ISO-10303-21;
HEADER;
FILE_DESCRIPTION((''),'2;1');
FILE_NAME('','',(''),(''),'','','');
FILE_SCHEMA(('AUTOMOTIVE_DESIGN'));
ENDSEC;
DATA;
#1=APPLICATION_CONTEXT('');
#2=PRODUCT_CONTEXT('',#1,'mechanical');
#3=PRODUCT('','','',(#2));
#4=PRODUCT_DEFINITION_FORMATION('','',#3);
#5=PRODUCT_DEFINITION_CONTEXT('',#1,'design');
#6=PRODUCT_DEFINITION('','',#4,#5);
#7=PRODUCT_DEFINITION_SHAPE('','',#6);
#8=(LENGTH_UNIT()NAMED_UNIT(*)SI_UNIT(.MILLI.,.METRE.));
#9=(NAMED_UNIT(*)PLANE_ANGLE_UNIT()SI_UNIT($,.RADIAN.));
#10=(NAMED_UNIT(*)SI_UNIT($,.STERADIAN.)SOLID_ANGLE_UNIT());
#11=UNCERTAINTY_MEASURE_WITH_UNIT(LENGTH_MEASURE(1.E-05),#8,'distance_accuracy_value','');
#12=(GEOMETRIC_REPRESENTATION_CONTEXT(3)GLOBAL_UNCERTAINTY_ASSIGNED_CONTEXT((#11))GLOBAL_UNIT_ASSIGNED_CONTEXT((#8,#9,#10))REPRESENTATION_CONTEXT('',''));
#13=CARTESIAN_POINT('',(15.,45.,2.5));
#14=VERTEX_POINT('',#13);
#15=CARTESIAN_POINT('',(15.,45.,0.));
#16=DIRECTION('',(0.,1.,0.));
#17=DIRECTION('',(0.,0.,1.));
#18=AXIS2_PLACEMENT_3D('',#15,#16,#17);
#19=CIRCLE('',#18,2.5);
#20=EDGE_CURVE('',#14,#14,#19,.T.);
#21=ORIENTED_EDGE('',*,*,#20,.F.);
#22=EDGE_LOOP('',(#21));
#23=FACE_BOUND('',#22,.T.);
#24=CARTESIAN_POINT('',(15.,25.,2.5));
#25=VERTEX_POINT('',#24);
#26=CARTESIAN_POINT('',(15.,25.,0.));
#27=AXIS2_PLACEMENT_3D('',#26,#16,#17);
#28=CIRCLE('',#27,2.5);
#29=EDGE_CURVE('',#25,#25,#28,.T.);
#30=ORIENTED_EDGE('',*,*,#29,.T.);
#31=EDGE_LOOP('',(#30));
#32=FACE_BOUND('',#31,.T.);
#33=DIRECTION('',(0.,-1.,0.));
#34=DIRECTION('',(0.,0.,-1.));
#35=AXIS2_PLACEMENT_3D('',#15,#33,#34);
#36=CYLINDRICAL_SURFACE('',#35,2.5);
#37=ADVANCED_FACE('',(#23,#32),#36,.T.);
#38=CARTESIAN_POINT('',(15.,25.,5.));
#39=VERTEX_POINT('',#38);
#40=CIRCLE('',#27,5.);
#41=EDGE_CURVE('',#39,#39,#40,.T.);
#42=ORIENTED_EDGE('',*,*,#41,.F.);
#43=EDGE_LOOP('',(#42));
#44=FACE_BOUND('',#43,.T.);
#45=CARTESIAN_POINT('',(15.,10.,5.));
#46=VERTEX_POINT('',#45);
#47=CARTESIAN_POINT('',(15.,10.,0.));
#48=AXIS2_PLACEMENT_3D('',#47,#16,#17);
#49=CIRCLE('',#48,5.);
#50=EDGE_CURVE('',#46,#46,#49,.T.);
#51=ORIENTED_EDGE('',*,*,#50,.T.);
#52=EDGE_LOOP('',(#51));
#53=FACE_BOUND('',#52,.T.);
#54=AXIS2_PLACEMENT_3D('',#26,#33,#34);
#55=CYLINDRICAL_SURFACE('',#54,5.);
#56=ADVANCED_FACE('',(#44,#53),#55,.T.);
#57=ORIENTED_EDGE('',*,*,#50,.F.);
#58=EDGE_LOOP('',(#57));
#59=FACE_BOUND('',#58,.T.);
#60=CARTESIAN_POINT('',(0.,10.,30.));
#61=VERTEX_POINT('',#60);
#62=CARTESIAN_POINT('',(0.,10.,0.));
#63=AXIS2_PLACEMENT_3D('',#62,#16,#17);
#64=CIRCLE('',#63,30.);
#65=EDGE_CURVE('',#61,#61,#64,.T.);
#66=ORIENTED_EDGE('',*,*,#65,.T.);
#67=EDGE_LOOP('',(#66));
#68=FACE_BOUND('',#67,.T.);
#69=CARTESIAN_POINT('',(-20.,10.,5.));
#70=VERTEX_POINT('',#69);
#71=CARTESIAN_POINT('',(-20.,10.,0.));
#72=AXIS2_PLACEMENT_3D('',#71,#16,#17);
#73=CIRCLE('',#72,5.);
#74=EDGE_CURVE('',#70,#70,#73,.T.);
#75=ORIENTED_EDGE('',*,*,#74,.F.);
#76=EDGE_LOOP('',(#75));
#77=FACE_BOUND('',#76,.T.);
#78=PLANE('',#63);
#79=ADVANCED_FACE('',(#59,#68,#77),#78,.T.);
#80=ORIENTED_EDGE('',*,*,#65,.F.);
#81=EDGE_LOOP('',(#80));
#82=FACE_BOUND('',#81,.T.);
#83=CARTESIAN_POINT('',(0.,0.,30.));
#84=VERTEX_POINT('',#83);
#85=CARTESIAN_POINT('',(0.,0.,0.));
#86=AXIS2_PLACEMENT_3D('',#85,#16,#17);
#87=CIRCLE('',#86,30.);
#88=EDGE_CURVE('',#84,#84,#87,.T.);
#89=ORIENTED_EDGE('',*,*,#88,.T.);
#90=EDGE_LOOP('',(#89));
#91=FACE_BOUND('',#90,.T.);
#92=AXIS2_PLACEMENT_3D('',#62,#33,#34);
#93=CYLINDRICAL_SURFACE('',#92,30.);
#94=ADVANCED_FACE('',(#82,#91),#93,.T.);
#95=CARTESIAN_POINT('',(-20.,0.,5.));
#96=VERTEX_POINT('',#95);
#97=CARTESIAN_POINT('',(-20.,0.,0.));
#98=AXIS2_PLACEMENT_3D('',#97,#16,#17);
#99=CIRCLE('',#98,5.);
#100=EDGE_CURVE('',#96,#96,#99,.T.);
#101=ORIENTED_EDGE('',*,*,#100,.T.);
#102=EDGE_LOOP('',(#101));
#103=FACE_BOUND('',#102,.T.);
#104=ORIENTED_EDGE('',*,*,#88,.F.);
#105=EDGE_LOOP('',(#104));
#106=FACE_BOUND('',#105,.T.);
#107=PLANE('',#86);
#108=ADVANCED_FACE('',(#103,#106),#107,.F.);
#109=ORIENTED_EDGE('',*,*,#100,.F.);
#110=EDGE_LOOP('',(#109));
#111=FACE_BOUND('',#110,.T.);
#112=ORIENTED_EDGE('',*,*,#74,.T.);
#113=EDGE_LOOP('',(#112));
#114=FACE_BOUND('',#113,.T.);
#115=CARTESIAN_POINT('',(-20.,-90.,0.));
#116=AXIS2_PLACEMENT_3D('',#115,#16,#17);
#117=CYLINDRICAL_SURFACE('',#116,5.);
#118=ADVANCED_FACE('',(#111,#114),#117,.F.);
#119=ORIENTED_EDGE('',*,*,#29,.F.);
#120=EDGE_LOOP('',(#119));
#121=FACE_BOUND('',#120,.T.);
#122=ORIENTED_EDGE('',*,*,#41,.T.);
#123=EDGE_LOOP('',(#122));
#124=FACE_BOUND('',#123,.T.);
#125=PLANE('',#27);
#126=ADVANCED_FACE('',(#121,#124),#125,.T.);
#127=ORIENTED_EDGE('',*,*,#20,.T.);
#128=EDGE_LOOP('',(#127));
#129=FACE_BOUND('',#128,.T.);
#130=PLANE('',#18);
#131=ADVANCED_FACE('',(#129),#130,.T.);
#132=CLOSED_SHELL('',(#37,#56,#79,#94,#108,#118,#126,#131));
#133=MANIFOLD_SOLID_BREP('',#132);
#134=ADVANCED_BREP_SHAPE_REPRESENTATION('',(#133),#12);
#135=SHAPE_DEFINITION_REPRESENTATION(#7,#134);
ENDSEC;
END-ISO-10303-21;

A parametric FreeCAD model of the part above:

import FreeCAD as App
import Part
import Sketcher
from FreeCAD import Vector

doc = App.newDocument("Part")
body = doc.addObject("PartDesign::Body", "Body")

sketch1 = body.newObject("Sketcher::SketchObject", "Sketch")
sketch1.AttachmentSupport = (doc.getObject("XZ_Plane"), [""])
sketch1.MapMode = "FlatFace"
sketch1.addGeometry(Part.Circle(Vector(0, 0, 0), Vector(0, 0, 1), 30), False)
sketch1.addConstraint([
    Sketcher.Constraint("Coincident", 0, 3, -1, 1),
    Sketcher.Constraint("Diameter", 0, 60.0),
])
pad1 = body.newObject("PartDesign::Pad", "Pad")
pad1.Profile = sketch1
pad1.Length = 10
pad1.Reversed = True

sketch2 = body.newObject("Sketcher::SketchObject", "Sketch001")
sketch2.AttachmentSupport = (doc.getObject("XZ_Plane"), [""])
sketch2.MapMode = "FlatFace"
sketch2.AttachmentOffset = App.Placement(Vector(0, 0, -10), App.Rotation())
sketch2.addGeometry(Part.Circle(Vector(15, 0, 0), Vector(0, 0, 1), 5), False)
sketch2.addConstraint([
    Sketcher.Constraint("PointOnObject", 0, 3, -1),
    Sketcher.Constraint("Diameter", 0, 10.0),
    Sketcher.Constraint("DistanceX", -1, 1, 0, 3, 15.0),
])
pad2 = body.newObject("PartDesign::Pad", "Pad001")
pad2.Profile = sketch2
pad2.Length = 15
pad2.Reversed = True

sketch3 = body.newObject("Sketcher::SketchObject", "Sketch002")
sketch3.AttachmentSupport = (doc.getObject("XZ_Plane"), [""])
sketch3.MapMode = "FlatFace"
sketch3.AttachmentOffset = App.Placement(Vector(0, 0, -25), App.Rotation())
sketch3.addGeometry(Part.Circle(Vector(15, 0, 0), Vector(0, 0, 1), 2.5), False)
sketch3.addConstraint([
    Sketcher.Constraint("PointOnObject", 0, 3, -1),
    Sketcher.Constraint("Diameter", 0, 5.0),
    Sketcher.Constraint("DistanceX", -1, 1, 0, 3, 15.0),
])
pad3 = body.newObject("PartDesign::Pad", "Pad002")
pad3.Profile = sketch3
pad3.Length = 20
pad3.Reversed = True

sketch4 = body.newObject("Sketcher::SketchObject", "Sketch003")
sketch4.AttachmentSupport = (doc.getObject("XZ_Plane"), [""])
sketch4.MapMode = "FlatFace"
sketch4.AttachmentOffset = App.Placement(Vector(0, 0, -10), App.Rotation())
sketch4.addGeometry(Part.Circle(Vector(-20, 0, 0), Vector(0, 0, 1), 5), False)
sketch4.addConstraint([
    Sketcher.Constraint("PointOnObject", 0, 3, -1),
    Sketcher.Constraint("Diameter", 0, 10.0),
    Sketcher.Constraint("DistanceX", 0, 3, -1, 1, 20.0),
])
pocket1 = body.newObject("PartDesign::Pocket", "Pocket")
pocket1.Profile = sketch4
pocket1.Length = 100
pocket1.Reversed = True

doc.recompute()
